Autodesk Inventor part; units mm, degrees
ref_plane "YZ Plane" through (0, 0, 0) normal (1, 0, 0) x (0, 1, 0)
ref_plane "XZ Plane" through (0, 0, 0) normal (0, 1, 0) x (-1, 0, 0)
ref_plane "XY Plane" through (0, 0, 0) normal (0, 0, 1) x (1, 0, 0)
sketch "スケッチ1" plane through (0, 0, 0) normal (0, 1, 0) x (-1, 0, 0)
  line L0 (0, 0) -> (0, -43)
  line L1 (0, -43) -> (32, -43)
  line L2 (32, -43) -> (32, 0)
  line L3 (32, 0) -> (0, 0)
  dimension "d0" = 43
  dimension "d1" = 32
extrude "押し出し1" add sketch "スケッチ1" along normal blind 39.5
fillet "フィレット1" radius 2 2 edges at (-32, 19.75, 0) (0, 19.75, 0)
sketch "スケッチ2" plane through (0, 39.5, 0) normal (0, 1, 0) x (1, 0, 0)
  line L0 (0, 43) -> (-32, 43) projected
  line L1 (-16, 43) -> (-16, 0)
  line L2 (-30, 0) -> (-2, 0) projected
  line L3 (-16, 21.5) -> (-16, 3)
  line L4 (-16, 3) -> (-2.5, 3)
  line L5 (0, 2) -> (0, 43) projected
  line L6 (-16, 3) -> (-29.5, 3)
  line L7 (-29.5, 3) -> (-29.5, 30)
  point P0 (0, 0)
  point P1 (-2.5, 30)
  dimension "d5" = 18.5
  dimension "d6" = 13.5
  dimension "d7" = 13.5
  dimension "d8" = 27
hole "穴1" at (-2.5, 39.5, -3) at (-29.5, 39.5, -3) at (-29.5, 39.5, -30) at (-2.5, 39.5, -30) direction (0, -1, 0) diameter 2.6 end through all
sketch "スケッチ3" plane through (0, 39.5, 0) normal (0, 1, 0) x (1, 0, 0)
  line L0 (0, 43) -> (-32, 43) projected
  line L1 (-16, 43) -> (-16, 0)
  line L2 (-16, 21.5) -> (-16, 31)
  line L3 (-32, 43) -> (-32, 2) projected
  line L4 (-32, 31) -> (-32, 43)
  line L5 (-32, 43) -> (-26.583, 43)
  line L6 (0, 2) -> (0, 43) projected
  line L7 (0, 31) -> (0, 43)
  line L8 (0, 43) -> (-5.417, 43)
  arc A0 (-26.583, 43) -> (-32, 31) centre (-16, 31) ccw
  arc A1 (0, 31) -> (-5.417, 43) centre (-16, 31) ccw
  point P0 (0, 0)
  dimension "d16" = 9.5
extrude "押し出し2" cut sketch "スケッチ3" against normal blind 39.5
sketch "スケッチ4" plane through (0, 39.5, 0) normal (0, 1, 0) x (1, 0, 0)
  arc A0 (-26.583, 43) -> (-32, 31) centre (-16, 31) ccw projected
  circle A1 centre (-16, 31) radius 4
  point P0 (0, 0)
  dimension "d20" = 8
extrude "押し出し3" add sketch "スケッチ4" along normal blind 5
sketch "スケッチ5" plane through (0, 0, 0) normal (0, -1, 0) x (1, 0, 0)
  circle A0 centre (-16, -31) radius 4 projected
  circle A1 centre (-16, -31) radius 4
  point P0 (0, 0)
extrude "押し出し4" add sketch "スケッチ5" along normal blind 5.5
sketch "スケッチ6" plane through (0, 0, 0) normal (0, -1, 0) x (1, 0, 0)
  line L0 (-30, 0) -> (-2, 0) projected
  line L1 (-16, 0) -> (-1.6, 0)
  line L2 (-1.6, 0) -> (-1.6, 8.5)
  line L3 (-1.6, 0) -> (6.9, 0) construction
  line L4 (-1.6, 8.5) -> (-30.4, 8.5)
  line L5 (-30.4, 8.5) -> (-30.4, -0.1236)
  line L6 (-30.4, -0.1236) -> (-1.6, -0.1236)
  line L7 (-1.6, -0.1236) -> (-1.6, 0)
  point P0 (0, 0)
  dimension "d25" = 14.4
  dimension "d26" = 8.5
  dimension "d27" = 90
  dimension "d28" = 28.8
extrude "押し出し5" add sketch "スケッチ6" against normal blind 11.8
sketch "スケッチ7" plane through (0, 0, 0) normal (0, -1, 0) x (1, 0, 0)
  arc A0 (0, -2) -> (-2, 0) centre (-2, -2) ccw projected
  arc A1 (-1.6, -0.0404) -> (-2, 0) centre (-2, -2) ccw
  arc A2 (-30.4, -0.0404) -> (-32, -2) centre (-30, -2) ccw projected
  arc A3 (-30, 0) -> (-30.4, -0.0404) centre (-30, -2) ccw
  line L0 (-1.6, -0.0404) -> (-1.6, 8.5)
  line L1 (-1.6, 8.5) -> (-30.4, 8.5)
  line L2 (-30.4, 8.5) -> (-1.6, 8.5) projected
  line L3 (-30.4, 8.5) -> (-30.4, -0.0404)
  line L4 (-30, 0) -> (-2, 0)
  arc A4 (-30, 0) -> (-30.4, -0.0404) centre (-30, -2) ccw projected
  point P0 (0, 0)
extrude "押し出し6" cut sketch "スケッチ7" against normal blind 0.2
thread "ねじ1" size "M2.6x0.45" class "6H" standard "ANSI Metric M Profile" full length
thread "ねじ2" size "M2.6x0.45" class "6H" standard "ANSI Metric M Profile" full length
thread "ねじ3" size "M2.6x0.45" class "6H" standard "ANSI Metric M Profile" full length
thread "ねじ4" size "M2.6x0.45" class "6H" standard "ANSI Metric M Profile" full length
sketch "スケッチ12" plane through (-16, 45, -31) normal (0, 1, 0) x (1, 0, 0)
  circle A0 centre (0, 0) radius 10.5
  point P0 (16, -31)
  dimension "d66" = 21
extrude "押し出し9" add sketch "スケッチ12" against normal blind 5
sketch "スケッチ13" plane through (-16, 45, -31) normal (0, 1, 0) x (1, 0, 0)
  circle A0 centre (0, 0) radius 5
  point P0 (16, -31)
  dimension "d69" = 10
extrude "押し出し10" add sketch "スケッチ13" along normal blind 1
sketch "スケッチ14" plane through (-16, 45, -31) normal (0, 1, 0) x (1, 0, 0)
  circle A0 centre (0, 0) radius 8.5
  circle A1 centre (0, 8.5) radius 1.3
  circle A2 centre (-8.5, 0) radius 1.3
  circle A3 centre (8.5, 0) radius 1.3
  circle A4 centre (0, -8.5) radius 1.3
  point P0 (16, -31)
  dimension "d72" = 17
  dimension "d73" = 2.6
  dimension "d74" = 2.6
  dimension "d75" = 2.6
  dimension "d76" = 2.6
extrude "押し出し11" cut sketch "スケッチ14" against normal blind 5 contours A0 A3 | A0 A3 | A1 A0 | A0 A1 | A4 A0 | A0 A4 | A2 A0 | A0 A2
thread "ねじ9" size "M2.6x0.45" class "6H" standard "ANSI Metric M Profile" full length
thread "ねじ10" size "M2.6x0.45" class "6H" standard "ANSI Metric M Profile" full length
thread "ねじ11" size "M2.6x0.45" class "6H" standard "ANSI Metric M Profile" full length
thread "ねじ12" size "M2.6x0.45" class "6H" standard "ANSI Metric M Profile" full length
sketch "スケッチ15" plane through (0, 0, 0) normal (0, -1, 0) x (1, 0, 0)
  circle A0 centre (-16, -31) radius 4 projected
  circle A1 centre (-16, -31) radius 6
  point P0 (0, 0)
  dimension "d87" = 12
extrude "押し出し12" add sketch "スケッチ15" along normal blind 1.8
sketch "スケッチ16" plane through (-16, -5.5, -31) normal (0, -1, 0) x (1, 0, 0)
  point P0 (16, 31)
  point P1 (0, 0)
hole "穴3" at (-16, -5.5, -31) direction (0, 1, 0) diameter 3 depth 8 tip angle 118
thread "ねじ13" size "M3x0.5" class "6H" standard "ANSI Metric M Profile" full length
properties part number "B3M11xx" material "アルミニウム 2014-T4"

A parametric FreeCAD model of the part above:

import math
import FreeCAD as App
import Part
import Sketcher
from FreeCAD import Vector
Q = App.Units.Quantity


def edges_at(feature, points):
    """Names of the edges that pass closest to the given points."""
    edges = feature.Shape.Edges
    near = lambda p: min(range(len(edges)), key=lambda i: edges[i].distToShape(Part.Vertex(*p))[0])
    return sorted({f"Edge{near(p) + 1}" for p in points})

doc = App.newDocument("Part")
params = doc.addObject("Spreadsheet::Sheet", "Params")
for row, (alias, value) in enumerate([
    ("sketch1_width", "32 mm"),
    ("sketch1_height", "43 mm"),
    ("pad1_length", "39.5 mm"),
    ("fillet_radius", "2 mm"),
    ("sketch2_diameter", "2.6 mm"),
    ("hole_diameter", "2.6 mm"),
    ("sketch3_radius", "16 mm"),
    ("sketch3_height", "12 mm"),
    ("pocket1_length", "39.5 mm"),
    ("sketch4_diameter", "8 mm"),
    ("pad2_length", "5 mm"),
    ("sketch5_diameter", "8 mm"),
    ("pad3_length", "5.5 mm"),
    ("sketch6_width", "28.8 mm"),
    ("pad4_length", "11.8 mm"),
    ("sketch7_radius", "2 mm"),
    ("sketch7_width", "28 mm"),
    ("sketch7_width2", "28.8 mm"),
    ("pocket2_length", "0.2 mm"),
    ("sketch8_diameter", "21 mm"),
    ("pad5_length", "5 mm"),
    ("sketch9_diameter", "10 mm"),
    ("pad6_length", "1 mm"),
    ("sketch10_diameter", "2.6 mm"),
    ("pocket3_length", "5 mm"),
    ("sketch11_diameter", "12 mm"),
    ("sketch11_diameter2", "8 mm"),
    ("pad7_length", "1.8 mm"),
    ("sketch12_diameter", "3 mm"),
    ("hole2_diameter", "3 mm"),
    ("hole2_depth", "8 mm"),
], start=1):
    params.set(f"A{row}", alias)
    params.set(f"B{row}", "=" + value)
    params.setAlias(f"B{row}", alias)

body = doc.addObject("PartDesign::Body", "Body")

sketch1 = body.newObject("Sketcher::SketchObject", "Sketch")
sketch1.AttachmentSupport = (doc.getObject("XZ_Plane"), [""])
sketch1.MapMode = "FlatFace"
sketch1.addGeometry(Part.LineSegment(Vector(-32, 0, 0), Vector(0, 0, 0)), False)
sketch1.addGeometry(Part.LineSegment(Vector(0, 0, 0), Vector(0, -43, 0)), False)
sketch1.addGeometry(Part.LineSegment(Vector(0, -43, 0), Vector(-32, -43, 0)), False)
sketch1.addGeometry(Part.LineSegment(Vector(-32, -43, 0), Vector(-32, 0, 0)), False)
sketch1.addConstraint(Sketcher.Constraint("Coincident", 0, 2, 1, 1))
sketch1.addConstraint(Sketcher.Constraint("Coincident", 1, 2, 2, 1))
sketch1.addConstraint(Sketcher.Constraint("Coincident", 2, 2, 3, 1))
sketch1.addConstraint(Sketcher.Constraint("Coincident", 3, 2, 0, 1))
sketch1.addConstraint(Sketcher.Constraint("Horizontal", 0))
sketch1.addConstraint(Sketcher.Constraint("Vertical", 1))
sketch1.addConstraint(Sketcher.Constraint("Horizontal", 2))
sketch1.addConstraint(Sketcher.Constraint("Vertical", 3))
sketch1.addConstraint(Sketcher.Constraint("Coincident", 0, 2, -1, 1))
sketch1.addConstraint(Sketcher.Constraint("DistanceX", 0, 1, 0, 2, Q("32 mm")))
sketch1.addConstraint(Sketcher.Constraint("DistanceY", 1, 2, 1, 1, Q("43 mm")))
sketch1.setExpression("Constraints[9]", "Params.sketch1_width")
sketch1.setExpression("Constraints[10]", "Params.sketch1_height")
pad1 = body.newObject("PartDesign::Pad", "Pad")
pad1.Profile = sketch1
pad1.setExpression("Length", "Params.pad1_length")
pad1.Reversed = True
doc.recompute()

fillet = body.newObject("PartDesign::Fillet", "Fillet")
fillet.Base = (pad1, edges_at(pad1, [(-32, 19.75, 0), (0, 19.75, 0)]))
fillet.setExpression("Radius", "Params.fillet_radius")

sketch2 = body.newObject("Sketcher::SketchObject", "Sketch001")
sketch2.AttachmentSupport = (doc.getObject("XZ_Plane"), [""])
sketch2.MapMode = "FlatFace"
sketch2.AttachmentOffset = App.Placement(Vector(0, 0, -39.5), App.Rotation())
sketch2.addGeometry(Part.Circle(Vector(-2.5, -3, 0), Vector(0, 0, 1), 1.3), False)
sketch2.addGeometry(Part.Circle(Vector(-29.5, -3, 0), Vector(0, 0, 1), 1.3), False)
sketch2.addGeometry(Part.Circle(Vector(-29.5, -30, 0), Vector(0, 0, 1), 1.3), False)
sketch2.addGeometry(Part.Circle(Vector(-2.5, -30, 0), Vector(0, 0, 1), 1.3), False)
sketch2.addConstraint(Sketcher.Constraint("Equal", 0, 1))
sketch2.addConstraint(Sketcher.Constraint("Equal", 1, 2))
sketch2.addConstraint(Sketcher.Constraint("Equal", 2, 3))
sketch2.addConstraint(Sketcher.Constraint("Horizontal", 0, 3, 1, 3))
sketch2.addConstraint(Sketcher.Constraint("Horizontal", 2, 3, 3, 3))
sketch2.addConstraint(Sketcher.Constraint("Vertical", 1, 3, 2, 3))
sketch2.addConstraint(Sketcher.Constraint("Vertical", 0, 3, 3, 3))
sketch2.addConstraint(Sketcher.Constraint("Diameter", 0, Q("2.6 mm")))
sketch2.addConstraint(Sketcher.Constraint("DistanceY", 0, 3, -1, 1, Q("3 mm")))
sketch2.addConstraint(Sketcher.Constraint("DistanceY", 2, 3, -1, 1, Q("30 mm")))
sketch2.addConstraint(Sketcher.Constraint("DistanceX", 1, 3, 0, 3, Q("27 mm")))
sketch2.addConstraint(Sketcher.Constraint("DistanceX", 0, 3, -1, 1, Q("2.5 mm")))
sketch2.setExpression("Constraints[7]", "Params.sketch2_diameter")
doc.recompute()
hole = body.newObject("PartDesign::Hole", "Hole")
hole.Profile = sketch2
hole.ThreadType = "None"
hole.setExpression("Diameter", "Params.hole_diameter")
hole.DepthType = "ThroughAll"
hole.Reversed = True

sketch3 = body.newObject("Sketcher::SketchObject", "Sketch002")
sketch3.AttachmentSupport = (doc.getObject("XZ_Plane"), [""])
sketch3.MapMode = "FlatFace"
sketch3.AttachmentOffset = App.Placement(Vector(0, 0, -39.5), App.Rotation())
sketch3.addGeometry(Part.LineSegment(Vector(0, -31, 0), Vector(0, -43, 0)), False)
sketch3.addGeometry(Part.LineSegment(Vector(0, -43, 0), Vector(-5.417, -43, 0)), False)
sketch3.addGeometry(Part.ArcOfCircle(Part.Circle(Vector(-16, -31, 0), Vector(0, 0, 1), 15.999997), math.radians(-48.590392), math.radians(0)), False)
sketch3.addGeometry(Part.ArcOfCircle(Part.Circle(Vector(-16, -31, 0), Vector(0, 0, 1), 16), math.radians(180), math.radians(228.590392)), False)
sketch3.addGeometry(Part.LineSegment(Vector(-26.583, -43, 0), Vector(-32, -43, 0)), False)
sketch3.addGeometry(Part.LineSegment(Vector(-32, -43, 0), Vector(-32, -31, 0)), False)
sketch3.addConstraint(Sketcher.Constraint("Coincident", 0, 2, 1, 1))
sketch3.addConstraint(Sketcher.Constraint("Coincident", 1, 2, 2, 1))
sketch3.addConstraint(Sketcher.Constraint("Tangent", 2, 2, 0, 1))
sketch3.addConstraint(Sketcher.Constraint("Coincident", 3, 2, 4, 1))
sketch3.addConstraint(Sketcher.Constraint("Coincident", 4, 2, 5, 1))
sketch3.addConstraint(Sketcher.Constraint("Tangent", 5, 2, 3, 1))
sketch3.addConstraint(Sketcher.Constraint("Vertical", 0))
sketch3.addConstraint(Sketcher.Constraint("Horizontal", 1))
sketch3.addConstraint(Sketcher.Constraint("Horizontal", 4))
sketch3.addConstraint(Sketcher.Constraint("Vertical", 5))
sketch3.addConstraint(Sketcher.Constraint("Coincident", 3, 3, 2, 3))
sketch3.addConstraint(Sketcher.Constraint("Equal", 2, 3))
sketch3.addConstraint(Sketcher.Constraint("PointOnObject", 0, 2, -2))
sketch3.addConstraint(Sketcher.Constraint("Horizontal", 1, 2, 3, 2))
sketch3.addConstraint(Sketcher.Constraint("Radius", 2, Q("16 mm")))
sketch3.addConstraint(Sketcher.Constraint("DistanceY", 0, 2, 0, 1, Q("12 mm")))
sketch3.addConstraint(Sketcher.Constraint("DistanceY", 2, 3, -1, 1, Q("31 mm")))
sketch3.setExpression("Constraints[14]", "Params.sketch3_radius")
sketch3.setExpression("Constraints[15]", "Params.sketch3_height")
pocket1 = body.newObject("PartDesign::Pocket", "Pocket")
pocket1.Profile = sketch3
pocket1.setExpression("Length", "Params.pocket1_length")
pocket1.Reversed = True

sketch4 = body.newObject("Sketcher::SketchObject", "Sketch003")
sketch4.AttachmentSupport = (doc.getObject("XZ_Plane"), [""])
sketch4.MapMode = "FlatFace"
sketch4.AttachmentOffset = App.Placement(Vector(0, 0, -39.5), App.Rotation())
sketch4.addGeometry(Part.Circle(Vector(-16, -31, 0), Vector(0, 0, 1), 4), False)
sketch4.addConstraint(Sketcher.Constraint("Diameter", 0, Q("8 mm")))
sketch4.addConstraint(Sketcher.Constraint("DistanceX", 0, 3, -1, 1, Q("16 mm")))
sketch4.addConstraint(Sketcher.Constraint("DistanceY", 0, 3, -1, 1, Q("31 mm")))
sketch4.setExpression("Constraints[0]", "Params.sketch4_diameter")
pad2 = body.newObject("PartDesign::Pad", "Pad001")
pad2.Profile = sketch4
pad2.setExpression("Length", "Params.pad2_length")
pad2.Reversed = True

sketch5 = body.newObject("Sketcher::SketchObject", "Sketch004")
sketch5.AttachmentSupport = (doc.getObject("XZ_Plane"), [""])
sketch5.MapMode = "FlatFace"
sketch5.addGeometry(Part.Circle(Vector(-16, -31, 0), Vector(0, 0, 1), 4), False)
sketch5.addConstraint(Sketcher.Constraint("Diameter", 0, Q("8 mm")))
sketch5.addConstraint(Sketcher.Constraint("DistanceX", 0, 3, -1, 1, Q("16 mm")))
sketch5.addConstraint(Sketcher.Constraint("DistanceY", 0, 3, -1, 1, Q("31 mm")))
sketch5.setExpression("Constraints[0]", "Params.sketch5_diameter")
pad3 = body.newObject("PartDesign::Pad", "Pad002")
pad3.Profile = sketch5
pad3.setExpression("Length", "Params.pad3_length")

sketch6 = body.newObject("Sketcher::SketchObject", "Sketch005")
sketch6.AttachmentSupport = (doc.getObject("XZ_Plane"), [""])
sketch6.MapMode = "FlatFace"
sketch6.addGeometry(Part.LineSegment(Vector(-1.6, -0.1236, 0), Vector(-1.6, 8.5, 0)), False)
sketch6.addGeometry(Part.LineSegment(Vector(-1.6, 8.5, 0), Vector(-30.4, 8.5, 0)), False)
sketch6.addGeometry(Part.LineSegment(Vector(-30.4, 8.5, 0), Vector(-30.4, -0.1236, 0)), False)
sketch6.addGeometry(Part.LineSegment(Vector(-30.4, -0.1236, 0), Vector(-1.6, -0.1236, 0)), False)
sketch6.addConstraint(Sketcher.Constraint("Coincident", 0, 2, 1, 1))
sketch6.addConstraint(Sketcher.Constraint("Coincident", 1, 2, 2, 1))
sketch6.addConstraint(Sketcher.Constraint("Coincident", 2, 2, 3, 1))
sketch6.addConstraint(Sketcher.Constraint("Coincident", 3, 2, 0, 1))
sketch6.addConstraint(Sketcher.Constraint("Vertical", 0))
sketch6.addConstraint(Sketcher.Constraint("Horizontal", 1))
sketch6.addConstraint(Sketcher.Constraint("Vertical", 2))
sketch6.addConstraint(Sketcher.Constraint("Horizontal", 3))
sketch6.addConstraint(Sketcher.Constraint("DistanceX", 1, 2, 1, 1, Q("28.8 mm")))
sketch6.addConstraint(Sketcher.Constraint("DistanceY", -1, 1, 0, 2, Q("8.5 mm")))
sketch6.addConstraint(Sketcher.Constraint("DistanceX", 0, 2, -1, 1, Q("1.6 mm")))
sketch6.addConstraint(Sketcher.Constraint("DistanceY", 0, 1, 0, 2, Q("8.6236 mm")))
sketch6.setExpression("Constraints[8]", "Params.sketch6_width")
pad4 = body.newObject("PartDesign::Pad", "Pad003")
pad4.Profile = sketch6
pad4.setExpression("Length", "Params.pad4_length")
pad4.Reversed = True

sketch7 = body.newObject("Sketcher::SketchObject", "Sketch006")
sketch7.AttachmentSupport = (doc.getObject("XZ_Plane"), [""])
sketch7.MapMode = "FlatFace"
sketch7.addGeometry(Part.ArcOfCircle(Part.Circle(Vector(-2, -2, 0), Vector(0, 0, 1), 2), math.radians(78.463088), math.radians(90)), False)
sketch7.addGeometry(Part.LineSegment(Vector(-1.6, -0.0404, 0), Vector(-1.6, 8.5, 0)), False)
sketch7.addGeometry(Part.LineSegment(Vector(-1.6, 8.5, 0), Vector(-30.4, 8.5, 0)), False)
sketch7.addGeometry(Part.LineSegment(Vector(-30.4, 8.5, 0), Vector(-30.4, -0.0404, 0)), False)
sketch7.addGeometry(Part.ArcOfCircle(Part.Circle(Vector(-30, -2, 0), Vector(0, 0, 1), 2.000008), math.radians(90), math.radians(101.536912)), False)
sketch7.addGeometry(Part.LineSegment(Vector(-30, 0, 0), Vector(-2, 0, 0)), False)
sketch7.addConstraint(Sketcher.Constraint("Coincident", 0, 1, 1, 1))
sketch7.addConstraint(Sketcher.Constraint("Coincident", 1, 2, 2, 1))
sketch7.addConstraint(Sketcher.Constraint("Coincident", 2, 2, 3, 1))
sketch7.addConstraint(Sketcher.Constraint("Coincident", 3, 2, 4, 2))
sketch7.addConstraint(Sketcher.Constraint("Tangent", 4, 1, 5, 1))
sketch7.addConstraint(Sketcher.Constraint("Tangent", 5, 2, 0, 2))
sketch7.addConstraint(Sketcher.Constraint("Vertical", 1))
sketch7.addConstraint(Sketcher.Constraint("Horizontal", 2))
sketch7.addConstraint(Sketcher.Constraint("Vertical", 3))
sketch7.addConstraint(Sketcher.Constraint("Horizontal", 5))
sketch7.addConstraint(Sketcher.Constraint("Equal", 0, 4))
sketch7.addConstraint(Sketcher.Constraint("PointOnObject", 4, 1, -1))
sketch7.addConstraint(Sketcher.Constraint("Horizontal", 0, 1, 3, 2))
sketch7.addConstraint(Sketcher.Constraint("Radius", 0, Q("2 mm")))
sketch7.addConstraint(Sketcher.Constraint("DistanceX", 5, 1, 5, 2, Q("28 mm")))
sketch7.addConstraint(Sketcher.Constraint("DistanceX", 2, 2, 2, 1, Q("28.8 mm")))
sketch7.addConstraint(Sketcher.Constraint("DistanceX", 0, 3, -1, 1, Q("2 mm")))
sketch7.addConstraint(Sketcher.Constraint("DistanceY", -1, 1, 1, 2, Q("8.5 mm")))
sketch7.setExpression("Constraints[13]", "Params.sketch7_radius")
sketch7.setExpression("Constraints[14]", "Params.sketch7_width")
sketch7.setExpression("Constraints[15]", "Params.sketch7_width2")
pocket2 = body.newObject("PartDesign::Pocket", "Pocket001")
pocket2.Profile = sketch7
pocket2.setExpression("Length", "Params.pocket2_length")

sketch8 = body.newObject("Sketcher::SketchObject", "Sketch007")
sketch8.AttachmentSupport = (doc.getObject("XZ_Plane"), [""])
sketch8.MapMode = "FlatFace"
sketch8.AttachmentOffset = App.Placement(Vector(0, 0, -45), App.Rotation())
sketch8.addGeometry(Part.Circle(Vector(-16, -31, 0), Vector(0, 0, 1), 10.5), False)
sketch8.addConstraint(Sketcher.Constraint("Diameter", 0, Q("21 mm")))
sketch8.addConstraint(Sketcher.Constraint("DistanceX", 0, 3, -1, 1, Q("16 mm")))
sketch8.addConstraint(Sketcher.Constraint("DistanceY", 0, 3, -1, 1, Q("31 mm")))
sketch8.setExpression("Constraints[0]", "Params.sketch8_diameter")
pad5 = body.newObject("PartDesign::Pad", "Pad004")
pad5.Profile = sketch8
pad5.setExpression("Length", "Params.pad5_length")

sketch9 = body.newObject("Sketcher::SketchObject", "Sketch008")
sketch9.AttachmentSupport = (doc.getObject("XZ_Plane"), [""])
sketch9.MapMode = "FlatFace"
sketch9.AttachmentOffset = App.Placement(Vector(0, 0, -45), App.Rotation())
sketch9.addGeometry(Part.Circle(Vector(-16, -31, 0), Vector(0, 0, 1), 5), False)
sketch9.addConstraint(Sketcher.Constraint("Diameter", 0, Q("10 mm")))
sketch9.addConstraint(Sketcher.Constraint("DistanceX", 0, 3, -1, 1, Q("16 mm")))
sketch9.addConstraint(Sketcher.Constraint("DistanceY", 0, 3, -1, 1, Q("31 mm")))
sketch9.setExpression("Constraints[0]", "Params.sketch9_diameter")
pad6 = body.newObject("PartDesign::Pad", "Pad005")
pad6.Profile = sketch9
pad6.setExpression("Length", "Params.pad6_length")
pad6.Reversed = True

sketch10 = body.newObject("Sketcher::SketchObject", "Sketch009")
sketch10.AttachmentSupport = (doc.getObject("XZ_Plane"), [""])
sketch10.MapMode = "FlatFace"
sketch10.AttachmentOffset = App.Placement(Vector(0, 0, -45), App.Rotation())
sketch10.addGeometry(Part.Circle(Vector(-7.5, -31, 0), Vector(0, 0, 1), 1.3), False)
sketch10.addGeometry(Part.Circle(Vector(-16, -39.5, 0), Vector(0, 0, 1), 1.3), False)
sketch10.addGeometry(Part.Circle(Vector(-16, -22.5, 0), Vector(0, 0, 1), 1.3), False)
sketch10.addGeometry(Part.Circle(Vector(-24.5, -31, 0), Vector(0, 0, 1), 1.3), False)
sketch10.addConstraint(Sketcher.Constraint("Equal", 0, 1))
sketch10.addConstraint(Sketcher.Constraint("Equal", 1, 2))
sketch10.addConstraint(Sketcher.Constraint("Equal", 2, 3))
sketch10.addConstraint(Sketcher.Constraint("Horizontal", 0, 3, 3, 3))
sketch10.addConstraint(Sketcher.Constraint("Vertical", 1, 3, 2, 3))
sketch10.addConstraint(Sketcher.Constraint("Diameter", 0, Q("2.6 mm")))
sketch10.addConstraint(Sketcher.Constraint("DistanceY", 1, 3, 2, 3, Q("17 mm")))
sketch10.addConstraint(Sketcher.Constraint("DistanceX", 3, 3, 0, 3, Q("17 mm")))
sketch10.addConstraint(Sketcher.Constraint("DistanceY", 0, 3, -1, 1, Q("31 mm")))
sketch10.addConstraint(Sketcher.Constraint("DistanceX", 1, 3, -1, 1, Q("16 mm")))
sketch10.addConstraint(Sketcher.Constraint("DistanceX", 0, 3, -1, 1, Q("7.5 mm")))
sketch10.addConstraint(Sketcher.Constraint("DistanceY", 1, 3, -1, 1, Q("39.5 mm")))
sketch10.setExpression("Constraints[5]", "Params.sketch10_diameter")
pocket3 = body.newObject("PartDesign::Pocket", "Pocket002")
pocket3.Profile = sketch10
pocket3.setExpression("Length", "Params.pocket3_length")
pocket3.Reversed = True

sketch11 = body.newObject("Sketcher::SketchObject", "Sketch010")
sketch11.AttachmentSupport = (doc.getObject("XZ_Plane"), [""])
sketch11.MapMode = "FlatFace"
sketch11.addGeometry(Part.Circle(Vector(-16, -31, 0), Vector(0, 0, 1), 6), False)
sketch11.addGeometry(Part.Circle(Vector(-16, -31, 0), Vector(0, 0, 1), 4), False)
sketch11.addConstraint(Sketcher.Constraint("Coincident", 1, 3, 0, 3))
sketch11.addConstraint(Sketcher.Constraint("Diameter", 0, Q("12 mm")))
sketch11.addConstraint(Sketcher.Constraint("Diameter", 1, Q("8 mm")))
sketch11.addConstraint(Sketcher.Constraint("DistanceX", 0, 3, -1, 1, Q("16 mm")))
sketch11.addConstraint(Sketcher.Constraint("DistanceY", 0, 3, -1, 1, Q("31 mm")))
sketch11.setExpression("Constraints[1]", "Params.sketch11_diameter")
sketch11.setExpression("Constraints[2]", "Params.sketch11_diameter2")
pad7 = body.newObject("PartDesign::Pad", "Pad006")
pad7.Profile = sketch11
pad7.setExpression("Length", "Params.pad7_length")

sketch12 = body.newObject("Sketcher::SketchObject", "Sketch011")
sketch12.AttachmentSupport = (doc.getObject("XZ_Plane"), [""])
sketch12.MapMode = "FlatFace"
sketch12.AttachmentOffset = App.Placement(Vector(0, 0, 5.5), App.Rotation())
sketch12.addGeometry(Part.Circle(Vector(-16, -31, 0), Vector(0, 0, 1), 1.5), False)
sketch12.addConstraint(Sketcher.Constraint("Diameter", 0, Q("3 mm")))
sketch12.addConstraint(Sketcher.Constraint("DistanceX", 0, 3, -1, 1, Q("16 mm")))
sketch12.addConstraint(Sketcher.Constraint("DistanceY", 0, 3, -1, 1, Q("31 mm")))
sketch12.setExpression("Constraints[0]", "Params.sketch12_diameter")
doc.recompute()
hole2 = body.newObject("PartDesign::Hole", "Hole001")
hole2.Profile = sketch12
hole2.ThreadType = "None"
hole2.setExpression("Diameter", "Params.hole2_diameter")
hole2.DepthType = "Dimension"
hole2.setExpression("Depth", "Params.hole2_depth")
hole2.DrillPoint = "Angled"
hole2.DrillPointAngle = 118

doc.recompute()
